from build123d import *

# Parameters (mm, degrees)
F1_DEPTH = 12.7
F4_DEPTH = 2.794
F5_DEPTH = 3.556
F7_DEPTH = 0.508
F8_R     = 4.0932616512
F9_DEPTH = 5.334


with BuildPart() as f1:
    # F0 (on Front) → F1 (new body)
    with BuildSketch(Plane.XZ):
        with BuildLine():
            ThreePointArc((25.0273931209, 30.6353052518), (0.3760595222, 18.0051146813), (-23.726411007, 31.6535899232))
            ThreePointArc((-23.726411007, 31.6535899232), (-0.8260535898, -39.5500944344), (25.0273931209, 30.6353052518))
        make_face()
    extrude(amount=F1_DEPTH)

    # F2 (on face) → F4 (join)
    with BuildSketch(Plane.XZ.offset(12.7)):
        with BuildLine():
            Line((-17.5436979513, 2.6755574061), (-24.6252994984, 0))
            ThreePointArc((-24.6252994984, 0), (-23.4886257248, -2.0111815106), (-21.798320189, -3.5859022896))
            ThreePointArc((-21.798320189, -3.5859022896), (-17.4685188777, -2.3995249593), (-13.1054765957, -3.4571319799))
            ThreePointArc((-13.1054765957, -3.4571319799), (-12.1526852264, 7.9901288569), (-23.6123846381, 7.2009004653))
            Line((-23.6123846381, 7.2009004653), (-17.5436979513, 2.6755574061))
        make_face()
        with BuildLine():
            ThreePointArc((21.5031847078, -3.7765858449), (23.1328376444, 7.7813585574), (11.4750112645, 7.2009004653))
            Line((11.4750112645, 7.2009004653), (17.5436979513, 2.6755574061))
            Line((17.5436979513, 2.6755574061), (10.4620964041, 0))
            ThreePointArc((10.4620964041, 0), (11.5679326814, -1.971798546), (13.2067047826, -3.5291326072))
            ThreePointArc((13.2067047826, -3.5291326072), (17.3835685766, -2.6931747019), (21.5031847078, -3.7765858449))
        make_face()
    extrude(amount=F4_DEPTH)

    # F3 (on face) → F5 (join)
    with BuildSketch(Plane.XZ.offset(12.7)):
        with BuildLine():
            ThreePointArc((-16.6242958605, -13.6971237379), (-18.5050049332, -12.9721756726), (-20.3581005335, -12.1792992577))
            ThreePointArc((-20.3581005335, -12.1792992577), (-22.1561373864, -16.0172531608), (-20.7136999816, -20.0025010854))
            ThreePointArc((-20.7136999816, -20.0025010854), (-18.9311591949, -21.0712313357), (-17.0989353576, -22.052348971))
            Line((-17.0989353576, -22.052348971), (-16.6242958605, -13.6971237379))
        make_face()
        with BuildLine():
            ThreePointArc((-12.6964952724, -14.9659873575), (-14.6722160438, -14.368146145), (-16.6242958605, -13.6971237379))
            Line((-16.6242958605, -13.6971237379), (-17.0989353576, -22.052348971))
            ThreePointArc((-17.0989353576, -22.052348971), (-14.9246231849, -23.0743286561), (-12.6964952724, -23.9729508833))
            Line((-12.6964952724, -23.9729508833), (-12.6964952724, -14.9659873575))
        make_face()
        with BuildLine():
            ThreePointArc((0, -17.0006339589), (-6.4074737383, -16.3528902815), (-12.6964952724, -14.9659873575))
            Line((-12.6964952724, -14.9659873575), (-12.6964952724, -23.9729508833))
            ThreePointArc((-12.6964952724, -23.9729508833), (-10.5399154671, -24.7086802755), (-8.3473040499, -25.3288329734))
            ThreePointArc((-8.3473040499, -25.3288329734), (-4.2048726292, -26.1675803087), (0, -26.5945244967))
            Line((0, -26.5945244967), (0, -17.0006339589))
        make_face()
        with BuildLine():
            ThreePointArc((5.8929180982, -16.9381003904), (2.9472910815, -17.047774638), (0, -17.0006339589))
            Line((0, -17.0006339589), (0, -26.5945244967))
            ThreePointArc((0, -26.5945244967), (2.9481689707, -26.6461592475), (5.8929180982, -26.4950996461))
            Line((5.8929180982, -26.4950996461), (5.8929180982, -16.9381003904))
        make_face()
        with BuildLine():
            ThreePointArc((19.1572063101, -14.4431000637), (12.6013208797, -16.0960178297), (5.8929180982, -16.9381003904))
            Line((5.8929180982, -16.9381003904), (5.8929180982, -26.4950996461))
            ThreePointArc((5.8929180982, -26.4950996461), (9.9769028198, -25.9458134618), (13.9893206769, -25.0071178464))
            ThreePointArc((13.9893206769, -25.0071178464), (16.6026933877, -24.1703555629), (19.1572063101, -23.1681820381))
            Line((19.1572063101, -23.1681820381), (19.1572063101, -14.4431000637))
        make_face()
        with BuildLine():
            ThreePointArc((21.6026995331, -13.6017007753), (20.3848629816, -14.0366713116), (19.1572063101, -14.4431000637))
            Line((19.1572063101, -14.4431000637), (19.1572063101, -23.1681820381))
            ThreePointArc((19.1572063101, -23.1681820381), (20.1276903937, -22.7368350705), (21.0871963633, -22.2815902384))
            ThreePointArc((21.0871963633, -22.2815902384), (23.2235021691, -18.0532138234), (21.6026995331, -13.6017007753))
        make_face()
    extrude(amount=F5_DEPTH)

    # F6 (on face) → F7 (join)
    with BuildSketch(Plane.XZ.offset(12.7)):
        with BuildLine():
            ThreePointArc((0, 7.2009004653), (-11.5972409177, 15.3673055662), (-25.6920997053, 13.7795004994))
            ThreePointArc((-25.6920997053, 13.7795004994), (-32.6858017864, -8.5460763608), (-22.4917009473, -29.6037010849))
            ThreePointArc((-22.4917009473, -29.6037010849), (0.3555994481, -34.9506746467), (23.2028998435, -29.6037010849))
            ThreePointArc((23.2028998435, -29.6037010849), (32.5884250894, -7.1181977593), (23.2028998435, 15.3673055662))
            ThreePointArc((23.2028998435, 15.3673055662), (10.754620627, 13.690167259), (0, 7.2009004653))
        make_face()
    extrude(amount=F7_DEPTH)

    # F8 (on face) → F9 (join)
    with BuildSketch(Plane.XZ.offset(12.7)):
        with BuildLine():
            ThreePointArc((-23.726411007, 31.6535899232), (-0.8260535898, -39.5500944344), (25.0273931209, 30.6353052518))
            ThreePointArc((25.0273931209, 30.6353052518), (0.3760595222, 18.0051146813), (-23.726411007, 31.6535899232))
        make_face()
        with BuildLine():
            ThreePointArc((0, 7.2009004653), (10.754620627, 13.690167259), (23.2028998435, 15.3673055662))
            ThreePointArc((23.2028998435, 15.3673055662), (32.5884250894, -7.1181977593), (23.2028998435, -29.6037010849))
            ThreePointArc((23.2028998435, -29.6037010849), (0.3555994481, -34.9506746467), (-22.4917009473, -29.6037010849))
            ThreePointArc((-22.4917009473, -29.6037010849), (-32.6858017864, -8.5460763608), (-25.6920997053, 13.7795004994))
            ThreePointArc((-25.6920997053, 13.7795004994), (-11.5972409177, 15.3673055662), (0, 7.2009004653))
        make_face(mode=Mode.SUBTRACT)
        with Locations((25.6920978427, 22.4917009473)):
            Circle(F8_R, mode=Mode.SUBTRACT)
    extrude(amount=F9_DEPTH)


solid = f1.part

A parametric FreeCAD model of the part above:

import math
import FreeCAD as App
import Part
import Sketcher

V = App.Vector
Q = App.Units.Quantity

doc = App.newDocument("Part")
body = doc.addObject("PartDesign::Body", "Body")

sketch1 = doc.addObject("Sketcher::SketchObject", "Sketch")
body.addObject(sketch1)
sketch1.AttachmentSupport = (doc.XZ_Plane, [""])
sketch1.MapMode = "FlatFace"
sketch1.addGeometry([
    Part.ArcOfCircle(Part.Circle(V(0.985571, 47.187548, 0), V(0, 0, 1), 29.188798), math.radians(-147.846521), math.radians(-34.54652)),
    Part.ArcOfCircle(Part.Circle(V(0, 0, 0), V(0, 0, 1), 39.55872), math.radians(126.853929), math.radians(410.75303)),
], False)
sketch1.addConstraint([
    Sketcher.Constraint("Coincident", 0, 1, 1, 1),
    Sketcher.Constraint("Coincident", 1, 2, 0, 2),
    Sketcher.Constraint("Coincident", 1, 3, -1, 1),
    Sketcher.Constraint("Radius", 0, Q("29.188798 mm")),
    Sketcher.Constraint("Radius", 1, Q("39.55872 mm")),
    Sketcher.Constraint("DistanceX", -1, 1, 0, 3, Q("0.985571 mm")),
    Sketcher.Constraint("DistanceY", -1, 1, 0, 3, Q("47.187548 mm")),
])
pad1 = doc.addObject("PartDesign::Pad", "Pad")
body.addObject(pad1)
pad1.Profile = sketch1
pad1.Length = Q("0.5 in")

sketch2 = doc.addObject("Sketcher::SketchObject", "Sketch001")
body.addObject(sketch2)
sketch2.AttachmentSupport = (doc.XZ_Plane, [""])
sketch2.MapMode = "FlatFace"
sketch2.AttachmentOffset = App.Placement(V(0, 0, 0.5 * 25.4), App.Rotation())
sketch2.addGeometry([
    Part.LineSegment(V(-17.543698, 2.675557, 0), V(-24.625299, 0, 0)),
    Part.ArcOfCircle(Part.Circle(V(-17.543698, 2.675557, 0), V(0, 0, 1), 7.570184), math.radians(-159.302526), math.radians(-124.19586)),
    Part.ArcOfCircle(Part.Circle(V(-17.3355, -11.379199, 0), V(0, 0, 1), 8.98066), math.radians(61.899814), math.radians(119.797549)),
    Part.ArcOfCircle(Part.Circle(V(-17.543698, 2.675557, 0), V(0, 0, 1), 7.570184), math.radians(-54.106777), math.radians(143.288571)),
    Part.LineSegment(V(-23.612385, 7.2009, 0), V(-17.543698, 2.675557, 0)),
    Part.ArcOfCircle(Part.Circle(V(17.543698, 2.675557, 0), V(0, 0, 1), 7.570184), math.radians(-58.463808), math.radians(143.288571)),
    Part.LineSegment(V(11.475011, 7.2009, 0), V(17.543698, 2.675557, 0)),
    Part.LineSegment(V(17.543698, 2.675557, 0), V(10.462096, 0, 0)),
    Part.ArcOfCircle(Part.Circle(V(17.543698, 2.675557, 0), V(0, 0, 1), 7.570184), math.radians(-159.302526), math.radians(-124.95302)),
    Part.ArcOfCircle(Part.Circle(V(17.101852, -12.138408, 0), V(0, 0, 1), 9.449434), math.radians(62.239457), math.radians(114.343715)),
], False)
sketch2.addConstraint([
    Sketcher.Constraint("Coincident", 0, 2, 1, 1),
    Sketcher.Constraint("Coincident", 1, 2, 2, 2),
    Sketcher.Constraint("Coincident", 2, 1, 3, 1),
    Sketcher.Constraint("Coincident", 3, 2, 4, 1),
    Sketcher.Constraint("Coincident", 4, 2, 0, 1),
    Sketcher.Constraint("Coincident", 5, 2, 6, 1),
    Sketcher.Constraint("Coincident", 6, 2, 7, 1),
    Sketcher.Constraint("Coincident", 7, 2, 8, 1),
    Sketcher.Constraint("Coincident", 8, 2, 9, 2),
    Sketcher.Constraint("Coincident", 9, 1, 5, 1),
    Sketcher.Constraint("Coincident", 3, 3, 1, 3),
    Sketcher.Constraint("Coincident", 8, 3, 5, 3),
    Sketcher.Constraint("Coincident", 4, 2, 1, 3),
    Sketcher.Constraint("Coincident", 6, 2, 5, 3),
    Sketcher.Constraint("Equal", 1, 3),
    Sketcher.Constraint("Equal", 3, 5),
    Sketcher.Constraint("Equal", 5, 8),
    Sketcher.Constraint("Symmetric", 1, 3, 5, 3, -2),
    Sketcher.Constraint("PointOnObject", 0, 2, -1),
    Sketcher.Constraint("PointOnObject", 7, 2, -1),
    Sketcher.Constraint("Parallel", 4, 6),
    Sketcher.Constraint("DistanceY", 2, 3, -1, 1, Q("0.448 in")),
    Sketcher.Constraint("Radius", 2, Q("8.98066 mm")),
    Sketcher.Constraint("DistanceX", 0, 2, 2, 3, Q("0.287 in")),
    Sketcher.Constraint("DistanceX", 2, 3, -1, 1, Q("0.6825 in")),
    Sketcher.Constraint("DistanceY", -1, 1, 3, 2, Q("0.2835 in")),
    Sketcher.Constraint("Radius", 1, Q("7.570184 mm")),
    Sketcher.Constraint("Radius", 9, Q("9.449434 mm")),
    Sketcher.Constraint("DistanceX", 1, 3, 2, 3, Q("0.208198 mm")),
    Sketcher.Constraint("DistanceY", 9, 3, -1, 1, Q("12.138408 mm")),
    Sketcher.Constraint("DistanceX", 2, 3, 9, 3, Q("34.437352 mm")),
])
pad2 = doc.addObject("PartDesign::Pad", "Pad001")
body.addObject(pad2)
pad2.Profile = sketch2
pad2.Length = Q("0.11 in")

sketch3 = doc.addObject("Sketcher::SketchObject", "Sketch002")
body.addObject(sketch3)
sketch3.AttachmentSupport = (doc.XZ_Plane, [""])
sketch3.MapMode = "FlatFace"
sketch3.AttachmentOffset = App.Placement(V(0, 0, 0.5 * 25.4), App.Rotation())
sketch3.addGeometry([
    Part.ArcOfCircle(Part.Circle(V(2.359391, 38.353639, 0), V(0, 0, 1), 55.404533), math.radians(-114.206686), math.radians(-110.037664)),
    Part.ArcOfCircle(Part.Circle(V(-16.624296, -16.2687, 0), V(0, 0, 1), 5.537553), math.radians(132.397468), math.radians(222.397417)),
    Part.ArcOfCircle(Part.Circle(V(2.224671, 16.235609, 0), V(0, 0, 1), 42.887871), math.radians(-122.333413), math.radians(-116.77969)),
    Part.ArcOfCircle(Part.Circle(V(2.224671, 16.235609, 0), V(0, 0, 1), 42.887871), math.radians(-116.77969), math.radians(-110.359602)),
    Part.ArcOfCircle(Part.Circle(V(2.224671, 16.235609, 0), V(0, 0, 1), 42.887871), math.radians(-110.359602), math.radians(-104.270655)),
    Part.ArcOfCircle(Part.Circle(V(2.224671, 16.235609, 0), V(0, 0, 1), 42.887871), math.radians(-104.270655), math.radians(-92.97337)),
    Part.ArcOfCircle(Part.Circle(V(2.224671, 16.235609, 0), V(0, 0, 1), 42.887871), math.radians(-92.97337), math.radians(-85.093434)),
    Part.ArcOfCircle(Part.Circle(V(2.224671, 16.235609, 0), V(0, 0, 1), 42.887871), math.radians(-85.093434), math.radians(-74.078993)),
    Part.ArcOfCircle(Part.Circle(V(2.224671, 16.235609, 0), V(0, 0, 1), 42.887871), math.radians(-74.078993), math.radians(-66.745912)),
    Part.ArcOfCircle(Part.Circle(V(2.224671, 16.235609, 0), V(0, 0, 1), 42.887871), math.radians(-66.745912), math.radians(-63.908225)),
    Part.ArcOfCircle(Part.Circle(V(17.271029, -17.699693, 0), V(0, 0, 1), 5.962962), math.radians(-50.209785), math.radians(43.412117)),
    Part.ArcOfCircle(Part.Circle(V(2.359391, 38.353639, 0), V(0, 0, 1), 55.404533), math.radians(-72.351006), math.radians(-69.676291)),
    Part.ArcOfCircle(Part.Circle(V(2.359391, 38.353639, 0), V(0, 0, 1), 55.404533), math.radians(-86.343373), math.radians(-72.351006)),
    Part.ArcOfCircle(Part.Circle(V(2.359391, 38.353639, 0), V(0, 0, 1), 55.404533), math.radians(-92.440667), math.radians(-86.343373)),
    Part.ArcOfCircle(Part.Circle(V(2.359391, 38.353639, 0), V(0, 0, 1), 55.404533), math.radians(-105.768111), math.radians(-92.440667)),
    Part.ArcOfCircle(Part.Circle(V(2.359391, 38.353639, 0), V(0, 0, 1), 55.404533), math.radians(-110.037664), math.radians(-105.768111)),
], False)
sketch3.addConstraint([
    Sketcher.Constraint("Coincident", 0, 1, 1, 1),
    Sketcher.Constraint("Coincident", 1, 2, 2, 1),
    Sketcher.Constraint("Tangent", 2, 2, 3, 1),
    Sketcher.Constraint("Tangent", 3, 2, 4, 1),
    Sketcher.Constraint("Tangent", 4, 2, 5, 1),
    Sketcher.Constraint("Tangent", 5, 2, 6, 1),
    Sketcher.Constraint("Tangent", 6, 2, 7, 1),
    Sketcher.Constraint("Tangent", 7, 2, 8, 1),
    Sketcher.Constraint("Tangent", 8, 2, 9, 1),
    Sketcher.Constraint("Coincident", 9, 2, 10, 1),
    Sketcher.Constraint("Coincident", 10, 2, 11, 2),
    Sketcher.Constraint("Tangent", 11, 1, 12, 2),
    Sketcher.Constraint("Tangent", 12, 1, 13, 2),
    Sketcher.Constraint("Tangent", 13, 1, 14, 2),
    Sketcher.Constraint("Tangent", 14, 1, 15, 2),
    Sketcher.Constraint("Tangent", 15, 1, 0, 2),
    Sketcher.Constraint("Coincident", 4, 3, 2, 3),
    Sketcher.Constraint("Coincident", 6, 3, 2, 3),
    Sketcher.Constraint("Coincident", 8, 3, 2, 3),
    Sketcher.Constraint("Coincident", 11, 3, 0, 3),
    Sketcher.Constraint("Coincident", 13, 3, 0, 3),
    Sketcher.Constraint("Equal", 8, 9),
    Sketcher.Constraint("Equal", 0, 11),
    Sketcher.Constraint("PointOnObject", 5, 2, -2),
    Sketcher.Constraint("PointOnObject", 13, 1, -2),
    Sketcher.Constraint("Vertical", 8, 2, 11, 1),
    Sketcher.Constraint("Vertical", 6, 2, 12, 1),
    Sketcher.Constraint("Vertical", 3, 2, 14, 1),
    Sketcher.Constraint("Vertical", 1, 3, 15, 1),
    Sketcher.Constraint("Radius", 2, Q("42.887871 mm")),
    Sketcher.Constraint("Radius", 10, Q("5.962962 mm")),
    Sketcher.Constraint("DistanceX", 0, 1, 1, 3, Q("0.1470002 in")),
    Sketcher.Constraint("DistanceY", 1, 3, 0, 1, Q("0.161 in")),
    Sketcher.Constraint("DistanceX", 1, 2, 1, 3, Q("0.1610002 in")),
    Sketcher.Constraint("DistanceX", 1, 3, -1, 1, Q("0.6544998 in")),
    Sketcher.Constraint("DistanceY", 1, 3, -1, 1, Q("0.6405 in")),
    Sketcher.Constraint("DistanceX", -1, 1, 10, 2, Q("0.8505 in")),
    Sketcher.Constraint("DistanceY", 10, 2, -1, 1, Q("0.5355 in")),
    Sketcher.Constraint("Radius", 0, Q("55.404533 mm")),
    Sketcher.Constraint("DistanceY", 2, 2, 9, 3, Q("1.5073999 in")),
    Sketcher.Constraint("DistanceX", 6, 2, 9, 2, Q("0.5981999 in")),
    Sketcher.Constraint("DistanceY", 6, 2, -1, 1, Q("26.4951 mm")),
    Sketcher.Constraint("DistanceY", 11, 1, -1, 1, Q("14.4431 mm")),
    Sketcher.Constraint("DistanceY", 12, 1, -1, 1, Q("16.9381 mm")),
    Sketcher.Constraint("DistanceY", 3, 2, 2, 2, Q("1.920602 mm")),
    Sketcher.Constraint("DistanceY", 4, 2, 13, 1, Q("8.328199 mm")),
    Sketcher.Constraint("DistanceX", -1, 1, 7, 2, Q("13.989321 mm")),
])
pad3 = doc.addObject("PartDesign::Pad", "Pad002")
body.addObject(pad3)
pad3.Profile = sketch3
pad3.Length = Q("0.14 in")

sketch4 = doc.addObject("Sketcher::SketchObject", "Sketch003")
body.addObject(sketch4)
sketch4.AttachmentSupport = (doc.XZ_Plane, [""])
sketch4.MapMode = "FlatFace"
sketch4.AttachmentOffset = App.Placement(V(0, 0, 0.5 * 25.4), App.Rotation())
sketch4.addGeometry([
    Part.ArcOfCircle(Part.Circle(V(-16.553571, -3.989172, 0), V(0, 0, 1), 19.980952), math.radians(34.058357), math.radians(117.217015)),
    Part.ArcOfCircle(Part.Circle(V(-1.013302, -6.209581, 0), V(0, 0, 1), 31.758565), math.radians(140.993571), math.radians(227.444616)),
    Part.ArcOfCircle(Part.Circle(V(0.355599, 16.535391, 0), V(0, 0, 1), 51.486065), math.radians(-116.343837), math.radians(-63.656163)),
    Part.ArcOfCircle(Part.Circle(V(0.960683, -7.118198, 0), V(0, 0, 1), 31.627742), math.radians(-45.311645), math.radians(45.311645)),
    Part.ArcOfCircle(Part.Circle(V(21.022134, -15.482534, 0), V(0, 0, 1), 30.926822), math.radians(85.956506), math.radians(132.823168)),
], False)
sketch4.addConstraint([
    Sketcher.Constraint("Coincident", 0, 2, 1, 1),
    Sketcher.Constraint("Coincident", 1, 2, 2, 1),
    Sketcher.Constraint("Coincident", 2, 2, 3, 1),
    Sketcher.Constraint("Coincident", 3, 2, 4, 1),
    Sketcher.Constraint("Coincident", 4, 2, 0, 1),
    Sketcher.Constraint("PointOnObject", 4, 2, -2),
    Sketcher.Constraint("Horizontal", 1, 2, 2, 2),
    Sketcher.Constraint("Vertical", 2, 2, 3, 2),
    Sketcher.Constraint("DistanceX", -1, 1, 2, 3, Q("0.014 in")),
    Sketcher.Constraint("Radius", 0, Q("19.980952 mm")),
    Sketcher.Constraint("DistanceX", 0, 2, 1, 2, Q("0.126 in")),
    Sketcher.Constraint("DistanceY", 1, 2, 0, 2, Q("1.7080001 in")),
    Sketcher.Constraint("DistanceX", 1, 2, 2, 2, Q("1.799 in")),
    Sketcher.Constraint("DistanceY", -1, 1, 0, 2, Q("0.5425 in")),
    Sketcher.Constraint("DistanceY", -1, 1, 4, 2, Q("0.2835 in")),
    Sketcher.Constraint("Radius", 1, Q("31.758565 mm")),
    Sketcher.Constraint("Radius", 2, Q("51.486065 mm")),
    Sketcher.Constraint("Radius", 3, Q("31.627742 mm")),
    Sketcher.Constraint("Radius", 4, Q("30.926822 mm")),
    Sketcher.Constraint("DistanceY", 3, 3, 0, 2, Q("20.897698 mm")),
])
pad4 = doc.addObject("PartDesign::Pad", "Pad003")
body.addObject(pad4)
pad4.Profile = sketch4
pad4.Length = Q("0.02 in")

sketch5 = doc.addObject("Sketcher::SketchObject", "Sketch004")
body.addObject(sketch5)
sketch5.AttachmentSupport = (doc.XZ_Plane, [""])
sketch5.MapMode = "FlatFace"
sketch5.AttachmentOffset = App.Placement(V(0, 0, 0.5 * 25.4), App.Rotation())
sketch5.addGeometry([
    Part.ArcOfCircle(Part.Circle(V(0, 0, 0), V(0, 0, 1), 39.55872), math.radians(126.853929), math.radians(410.75303)),
    Part.ArcOfCircle(Part.Circle(V(0.985571, 47.187548, 0), V(0, 0, 1), 29.188798), math.radians(-147.846521), math.radians(-34.54652)),
    Part.ArcOfCircle(Part.Circle(V(-16.553571, -3.989172, 0), V(0, 0, 1), 19.980952), math.radians(34.058357), math.radians(117.217015)),
    Part.ArcOfCircle(Part.Circle(V(21.022134, -15.482534, 0), V(0, 0, 1), 30.926822), math.radians(85.956506), math.radians(132.823168)),
    Part.ArcOfCircle(Part.Circle(V(0.960683, -7.118198, 0), V(0, 0, 1), 31.627742), math.radians(-45.311645), math.radians(45.311645)),
    Part.ArcOfCircle(Part.Circle(V(0.355599, 16.535391, 0), V(0, 0, 1), 51.486065), math.radians(-116.343837), math.radians(-63.656163)),
    Part.ArcOfCircle(Part.Circle(V(-1.013302, -6.209581, 0), V(0, 0, 1), 31.758565), math.radians(140.993571), math.radians(227.444616)),
    Part.Circle(V(25.692098, 22.491701, 0), V(0, 0, 1), 4.093262),
], False)
sketch5.addConstraint([
    Sketcher.Constraint("Coincident", 0, 1, 1, 1),
    Sketcher.Constraint("Coincident", 1, 2, 0, 2),
    Sketcher.Constraint("Coincident", 2, 1, 3, 2),
    Sketcher.Constraint("Coincident", 3, 1, 4, 2),
    Sketcher.Constraint("Coincident", 4, 1, 5, 2),
    Sketcher.Constraint("Coincident", 5, 1, 6, 2),
    Sketcher.Constraint("Coincident", 6, 1, 2, 2),
    Sketcher.Constraint("Coincident", 0, 3, -1, 1),
    Sketcher.Constraint("PointOnObject", 2, 1, -2),
    Sketcher.Constraint("Horizontal", 4, 1, 5, 1),
    Sketcher.Constraint("Vertical", 3, 1, 4, 1),
    Sketcher.Constraint("Radius", 1, Q("29.188798 mm")),
    Sketcher.Constraint("DistanceX", -1, 1, 5, 3, Q("0.014 in")),
    Sketcher.Constraint("Radius", 0, Q("39.55872 mm")),
    Sketcher.Constraint("Radius", 2, Q("19.980952 mm")),
    Sketcher.Constraint("DistanceX", 3, 1, 7, 3, Q("0.0979999 in")),
    Sketcher.Constraint("DistanceY", 4, 1, 2, 1, Q("1.4490001 in")),
    Sketcher.Constraint("DistanceY", 2, 1, 6, 1, Q("0.259 in")),
    Sketcher.Constraint("Diameter", 7, Q("8.186523 mm")),
    Sketcher.Constraint("DistanceX", -1, 1, 7, 3, Q("1.0114999 in")),
    Sketcher.Constraint("DistanceY", -1, 1, 7, 3, Q("0.8855 in")),
    Sketcher.Constraint("DistanceY", -1, 1, 2, 1, Q("0.2835 in")),
    Sketcher.Constraint("DistanceX", 6, 1, -1, 1, Q("1.0115 in")),
    Sketcher.Constraint("Radius", 3, Q("30.926822 mm")),
    Sketcher.Constraint("Radius", 4, Q("31.627742 mm")),
    Sketcher.Constraint("Radius", 5, Q("51.486065 mm")),
    Sketcher.Constraint("Radius", 6, Q("31.758565 mm")),
    Sketcher.Constraint("DistanceY", 4, 3, 7, 3, Q("29.609899 mm")),
    Sketcher.Constraint("DistanceY", 5, 3, 0, 1, Q("15.118199 mm")),
    Sketcher.Constraint("DistanceY", 3, 1, 1, 2, Q("15.268 mm")),
])
pad5 = doc.addObject("PartDesign::Pad", "Pad004")
body.addObject(pad5)
pad5.Profile = sketch5
pad5.Length = Q("0.21 in")

doc.recompute()
